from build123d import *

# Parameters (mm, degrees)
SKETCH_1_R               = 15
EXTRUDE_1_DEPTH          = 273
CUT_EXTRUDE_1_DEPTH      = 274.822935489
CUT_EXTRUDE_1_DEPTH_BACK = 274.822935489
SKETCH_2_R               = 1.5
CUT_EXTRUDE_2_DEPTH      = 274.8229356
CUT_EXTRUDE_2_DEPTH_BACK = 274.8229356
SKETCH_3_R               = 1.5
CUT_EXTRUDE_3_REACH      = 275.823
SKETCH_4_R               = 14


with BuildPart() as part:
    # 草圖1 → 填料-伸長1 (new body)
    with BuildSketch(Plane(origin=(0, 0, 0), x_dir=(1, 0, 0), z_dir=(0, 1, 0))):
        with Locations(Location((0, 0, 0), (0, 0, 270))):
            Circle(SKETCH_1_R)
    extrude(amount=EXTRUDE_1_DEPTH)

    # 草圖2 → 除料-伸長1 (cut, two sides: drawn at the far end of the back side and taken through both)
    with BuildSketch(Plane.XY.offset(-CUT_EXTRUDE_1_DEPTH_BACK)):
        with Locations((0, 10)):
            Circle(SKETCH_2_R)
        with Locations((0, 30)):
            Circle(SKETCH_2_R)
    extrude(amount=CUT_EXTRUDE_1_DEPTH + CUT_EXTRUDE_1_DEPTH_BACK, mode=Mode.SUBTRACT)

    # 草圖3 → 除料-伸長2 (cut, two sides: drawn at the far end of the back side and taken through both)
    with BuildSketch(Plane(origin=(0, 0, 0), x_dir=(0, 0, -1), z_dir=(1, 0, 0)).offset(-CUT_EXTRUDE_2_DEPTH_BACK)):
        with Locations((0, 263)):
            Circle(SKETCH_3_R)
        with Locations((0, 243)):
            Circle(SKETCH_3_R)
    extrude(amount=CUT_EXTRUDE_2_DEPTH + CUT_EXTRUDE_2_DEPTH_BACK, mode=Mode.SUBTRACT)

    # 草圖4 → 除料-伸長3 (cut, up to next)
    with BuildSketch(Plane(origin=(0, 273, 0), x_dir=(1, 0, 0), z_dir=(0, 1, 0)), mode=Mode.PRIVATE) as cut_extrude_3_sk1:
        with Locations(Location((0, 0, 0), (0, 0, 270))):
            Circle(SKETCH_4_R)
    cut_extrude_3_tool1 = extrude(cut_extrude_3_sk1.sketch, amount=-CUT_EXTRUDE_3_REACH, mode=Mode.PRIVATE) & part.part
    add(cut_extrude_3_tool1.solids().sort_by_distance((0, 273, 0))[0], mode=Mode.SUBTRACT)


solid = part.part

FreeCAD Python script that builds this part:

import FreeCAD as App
import Part
import Sketcher

doc = App.newDocument("Part")
body = doc.addObject("PartDesign::Body", "Body")

# Sketch on XZ plane
sketch1 = body.newObject("Sketcher::SketchObject", "Sketch")
sketch1.AttachmentSupport = (doc.getObject("XZ_Plane"), [""])
sketch1.MapMode = "FlatFace"
sketch1.addGeometry(Part.Circle(App.Vector(0, 0, 0), App.Vector(0, 0, 1), 15), False)
sketch1.addConstraint([
    Sketcher.Constraint("Coincident", 0, 3, -1, 1),
    Sketcher.Constraint("Diameter", 0, 30.0),
])
pad1 = body.newObject("PartDesign::Pad", "Pad")
pad1.Profile = sketch1
pad1.Length = 273
pad1.Reversed = True

# Sketch on XY plane
sketch2 = body.newObject("Sketcher::SketchObject", "Sketch001")
sketch2.AttachmentSupport = (doc.getObject("XY_Plane"), [""])
sketch2.MapMode = "FlatFace"
sketch2.addGeometry([
    Part.Circle(App.Vector(0, 10, 0), App.Vector(0, 0, 1), 1.5),
    Part.Circle(App.Vector(0, 30, 0), App.Vector(0, 0, 1), 1.5),
], False)
sketch2.addConstraint([
    Sketcher.Constraint("Equal", 0, 1),
    Sketcher.Constraint("PointOnObject", 0, 3, -2),
    Sketcher.Constraint("PointOnObject", 1, 3, -2),
    Sketcher.Constraint("Diameter", 0, 3.0),
    Sketcher.Constraint("DistanceY", -1, 1, 0, 3, 10.0),
    Sketcher.Constraint("DistanceY", -1, 1, 1, 3, 30.0),
])
pocket1 = body.newObject("PartDesign::Pocket", "Pocket")
pocket1.Profile = sketch2
pocket1.Type = "ThroughAll"
pocket1.Midplane = True

# Sketch on YZ plane
sketch3 = body.newObject("Sketcher::SketchObject", "Sketch002")
sketch3.AttachmentSupport = (doc.getObject("YZ_Plane"), [""])
sketch3.MapMode = "FlatFace"
sketch3.addGeometry([
    Part.Circle(App.Vector(263, 0, 0), App.Vector(0, 0, 1), 1.5),
    Part.Circle(App.Vector(243, 0, 0), App.Vector(0, 0, 1), 1.5),
], False)
sketch3.addConstraint([
    Sketcher.Constraint("Equal", 0, 1),
    Sketcher.Constraint("PointOnObject", 0, 3, -1),
    Sketcher.Constraint("PointOnObject", 1, 3, -1),
    Sketcher.Constraint("Diameter", 0, 3.0),
    Sketcher.Constraint("DistanceX", -1, 1, 0, 3, 263.0),
    Sketcher.Constraint("DistanceX", -1, 1, 1, 3, 243.0),
])
pocket2 = body.newObject("PartDesign::Pocket", "Pocket001")
pocket2.Profile = sketch3
pocket2.Type = "ThroughAll"
pocket2.Midplane = True

# Sketch on XZ plane
sketch4 = body.newObject("Sketcher::SketchObject", "Sketch003")
sketch4.AttachmentSupport = (doc.getObject("XZ_Plane"), [""])
sketch4.MapMode = "FlatFace"
sketch4.AttachmentOffset = App.Placement(App.Vector(0, 0, -273), App.Rotation())
sketch4.addGeometry(Part.Circle(App.Vector(0, 0, 0), App.Vector(0, 0, 1), 14), False)
sketch4.addConstraint([
    Sketcher.Constraint("Coincident", 0, 3, -1, 1),
    Sketcher.Constraint("Diameter", 0, 28.0),
])
pocket3 = body.newObject("PartDesign::Pocket", "Pocket002")
pocket3.Profile = sketch4
pocket3.Length = 273
pocket3.Reversed = True

doc.recompute()
